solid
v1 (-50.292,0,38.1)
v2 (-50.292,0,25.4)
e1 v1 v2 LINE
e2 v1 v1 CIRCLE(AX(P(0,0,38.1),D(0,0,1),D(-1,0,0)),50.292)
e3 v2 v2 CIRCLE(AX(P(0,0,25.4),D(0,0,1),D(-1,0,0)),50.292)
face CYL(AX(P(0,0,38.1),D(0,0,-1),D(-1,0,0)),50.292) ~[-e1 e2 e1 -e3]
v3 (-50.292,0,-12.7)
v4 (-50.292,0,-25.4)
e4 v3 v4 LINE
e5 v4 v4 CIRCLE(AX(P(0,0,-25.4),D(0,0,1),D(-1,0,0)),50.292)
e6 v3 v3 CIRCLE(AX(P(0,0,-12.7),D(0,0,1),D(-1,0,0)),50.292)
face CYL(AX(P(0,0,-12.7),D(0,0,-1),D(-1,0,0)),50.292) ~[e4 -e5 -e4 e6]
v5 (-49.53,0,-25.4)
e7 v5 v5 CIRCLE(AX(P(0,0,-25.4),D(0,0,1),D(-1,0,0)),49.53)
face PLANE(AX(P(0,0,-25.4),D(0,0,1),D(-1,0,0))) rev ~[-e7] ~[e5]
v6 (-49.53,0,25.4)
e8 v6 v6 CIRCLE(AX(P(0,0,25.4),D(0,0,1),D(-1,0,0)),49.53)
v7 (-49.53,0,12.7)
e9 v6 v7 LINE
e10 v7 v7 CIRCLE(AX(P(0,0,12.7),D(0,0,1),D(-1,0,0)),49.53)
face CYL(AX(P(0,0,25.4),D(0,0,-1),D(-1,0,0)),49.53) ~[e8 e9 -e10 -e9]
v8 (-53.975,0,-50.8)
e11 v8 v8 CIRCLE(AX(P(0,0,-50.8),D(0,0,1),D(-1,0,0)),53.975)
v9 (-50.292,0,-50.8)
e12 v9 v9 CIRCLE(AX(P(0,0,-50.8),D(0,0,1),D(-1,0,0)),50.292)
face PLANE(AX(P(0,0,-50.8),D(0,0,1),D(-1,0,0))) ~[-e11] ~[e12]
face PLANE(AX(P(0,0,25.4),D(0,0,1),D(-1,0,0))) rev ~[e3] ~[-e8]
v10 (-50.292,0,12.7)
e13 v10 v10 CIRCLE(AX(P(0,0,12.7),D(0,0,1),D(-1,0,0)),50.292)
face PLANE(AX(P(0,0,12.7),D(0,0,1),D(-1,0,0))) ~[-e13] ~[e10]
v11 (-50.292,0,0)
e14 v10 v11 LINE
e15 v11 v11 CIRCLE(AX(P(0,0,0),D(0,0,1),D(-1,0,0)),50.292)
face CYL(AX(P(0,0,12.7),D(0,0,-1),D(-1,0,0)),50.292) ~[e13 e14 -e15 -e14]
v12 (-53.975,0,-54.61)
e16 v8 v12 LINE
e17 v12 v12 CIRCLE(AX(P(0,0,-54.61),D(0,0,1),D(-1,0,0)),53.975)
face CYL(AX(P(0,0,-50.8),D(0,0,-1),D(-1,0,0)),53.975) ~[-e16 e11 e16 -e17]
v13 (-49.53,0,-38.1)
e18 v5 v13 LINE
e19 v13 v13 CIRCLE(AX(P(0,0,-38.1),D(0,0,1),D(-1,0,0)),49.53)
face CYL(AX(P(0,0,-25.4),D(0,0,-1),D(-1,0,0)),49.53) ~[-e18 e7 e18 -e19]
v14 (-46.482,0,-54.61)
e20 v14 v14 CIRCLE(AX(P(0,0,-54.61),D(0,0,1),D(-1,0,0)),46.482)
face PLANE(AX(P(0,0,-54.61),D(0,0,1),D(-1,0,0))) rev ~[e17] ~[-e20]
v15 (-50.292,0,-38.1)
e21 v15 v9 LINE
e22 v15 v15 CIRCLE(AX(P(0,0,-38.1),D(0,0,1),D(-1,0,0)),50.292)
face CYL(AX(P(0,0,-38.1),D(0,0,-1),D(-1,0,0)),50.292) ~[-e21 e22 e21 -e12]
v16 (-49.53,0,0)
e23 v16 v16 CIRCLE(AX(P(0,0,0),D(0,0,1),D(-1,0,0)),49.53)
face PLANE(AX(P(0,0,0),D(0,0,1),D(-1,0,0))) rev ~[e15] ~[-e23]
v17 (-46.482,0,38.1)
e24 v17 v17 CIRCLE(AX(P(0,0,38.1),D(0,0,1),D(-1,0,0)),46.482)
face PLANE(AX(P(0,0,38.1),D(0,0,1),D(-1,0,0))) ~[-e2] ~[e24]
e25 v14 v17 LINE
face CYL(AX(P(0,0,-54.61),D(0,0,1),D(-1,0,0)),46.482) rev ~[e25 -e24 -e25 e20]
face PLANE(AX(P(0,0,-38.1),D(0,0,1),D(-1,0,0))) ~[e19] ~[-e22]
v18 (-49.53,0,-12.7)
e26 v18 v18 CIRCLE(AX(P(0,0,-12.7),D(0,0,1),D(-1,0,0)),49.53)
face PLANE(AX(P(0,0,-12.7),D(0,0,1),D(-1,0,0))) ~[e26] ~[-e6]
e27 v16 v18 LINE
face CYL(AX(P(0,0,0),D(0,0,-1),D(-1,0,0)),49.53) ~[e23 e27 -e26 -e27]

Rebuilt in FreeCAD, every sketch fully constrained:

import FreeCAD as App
import Part
import Sketcher

V = App.Vector
Q = App.Units.Quantity

doc = App.newDocument("Part")
body = doc.addObject("PartDesign::Body", "Body")

sketch1 = body.newObject("Sketcher::SketchObject", "Sketch")
sketch1.AttachmentSupport = (doc.getObject("XZ_Plane"), [""])
sketch1.MapMode = "FlatFace"
sketch1.addGeometry([
    Part.LineSegment(V(-54, -50.8, 0), V(-54, -54.6, 0)),
    Part.LineSegment(V(-54, -54.6, 0), V(-46.5, -54.6, 0)),
    Part.LineSegment(V(-46.5, -54.6, 0), V(-46.5, 38.1, 0)),
    Part.LineSegment(V(-46.5, 38.1, 0), V(-50.3, 38.1, 0)),
    Part.LineSegment(V(-50.3, 38.1, 0), V(-50.3, 25.4, 0)),
    Part.LineSegment(V(-50.3, 25.4, 0), V(-49.5, 25.4, 0)),
    Part.LineSegment(V(-49.5, 25.4, 0), V(-49.5, 12.7, 0)),
    Part.LineSegment(V(-49.5, 12.7, 0), V(-50.3, 12.7, 0)),
    Part.LineSegment(V(-50.3, 12.7, 0), V(-50.3, 0, 0)),
    Part.LineSegment(V(-50.3, 0, 0), V(-49.5, 0, 0)),
    Part.LineSegment(V(-49.5, 0, 0), V(-49.5, -12.7, 0)),
    Part.LineSegment(V(-49.5, -12.7, 0), V(-50.3, -12.7, 0)),
    Part.LineSegment(V(-50.3, -12.7, 0), V(-50.3, -25.4, 0)),
    Part.LineSegment(V(-50.3, -25.4, 0), V(-49.5, -25.4, 0)),
    Part.LineSegment(V(-49.5, -25.4, 0), V(-49.5, -38.1, 0)),
    Part.LineSegment(V(-49.5, -38.1, 0), V(-50.3, -38.1, 0)),
    Part.LineSegment(V(-50.3, -38.1, 0), V(-50.3, -50.8, 0)),
    Part.LineSegment(V(-50.3, -50.8, 0), V(-54, -50.8, 0)),
], False)
sketch1.addConstraint([
    Sketcher.Constraint("Coincident", 0, 2, 1, 1),
    Sketcher.Constraint("Coincident", 1, 2, 2, 1),
    Sketcher.Constraint("Coincident", 2, 2, 3, 1),
    Sketcher.Constraint("Coincident", 3, 2, 4, 1),
    Sketcher.Constraint("Coincident", 4, 2, 5, 1),
    Sketcher.Constraint("Coincident", 5, 2, 6, 1),
    Sketcher.Constraint("Coincident", 6, 2, 7, 1),
    Sketcher.Constraint("Coincident", 7, 2, 8, 1),
    Sketcher.Constraint("Coincident", 8, 2, 9, 1),
    Sketcher.Constraint("Coincident", 9, 2, 10, 1),
    Sketcher.Constraint("Coincident", 10, 2, 11, 1),
    Sketcher.Constraint("Coincident", 11, 2, 12, 1),
    Sketcher.Constraint("Coincident", 12, 2, 13, 1),
    Sketcher.Constraint("Coincident", 13, 2, 14, 1),
    Sketcher.Constraint("Coincident", 14, 2, 15, 1),
    Sketcher.Constraint("Coincident", 15, 2, 16, 1),
    Sketcher.Constraint("Coincident", 16, 2, 17, 1),
    Sketcher.Constraint("Coincident", 17, 2, 0, 1),
    Sketcher.Constraint("Vertical", 0),
    Sketcher.Constraint("Horizontal", 1),
    Sketcher.Constraint("Vertical", 2),
    Sketcher.Constraint("Horizontal", 3),
    Sketcher.Constraint("Vertical", 4),
    Sketcher.Constraint("Horizontal", 5),
    Sketcher.Constraint("Vertical", 6),
    Sketcher.Constraint("Horizontal", 7),
    Sketcher.Constraint("Vertical", 8),
    Sketcher.Constraint("Horizontal", 9),
    Sketcher.Constraint("Vertical", 10),
    Sketcher.Constraint("Horizontal", 11),
    Sketcher.Constraint("Vertical", 12),
    Sketcher.Constraint("Horizontal", 13),
    Sketcher.Constraint("Vertical", 14),
    Sketcher.Constraint("Horizontal", 15),
    Sketcher.Constraint("Vertical", 16),
    Sketcher.Constraint("Horizontal", 17),
    Sketcher.Constraint("Symmetric", 6, 2, 10, 2, -1),
    Sketcher.Constraint("Symmetric", 4, 2, 12, 2, -1),
    Sketcher.Constraint("Symmetric", 3, 2, 15, 2, -1),
    Sketcher.Constraint("PointOnObject", 8, 2, -1),
    Sketcher.Constraint("Vertical", 4, 2, 7, 2),
    Sketcher.Constraint("Vertical", 10, 2, 13, 2),
    Sketcher.Constraint("Equal", 3, 0),
    Sketcher.Constraint("Equal", 4, 6),
    Sketcher.Constraint("Equal", 6, 8),
    Sketcher.Constraint("Equal", 14, 16),
    Sketcher.Constraint("DistanceY", 4, 2, 4, 1, Q("0.5 in")),
    Sketcher.Constraint("DistanceX", 3, 2, 3, 1, Q("0.15 in")),
    Sketcher.Constraint("DistanceX", 5, 1, 5, 2, Q("0.03 in")),
    Sketcher.Constraint("DistanceX", 1, 1, 1, 2, Q("0.295 in")),
    Sketcher.Constraint("DistanceX", 1, 2, -1, 1, Q("1.83 in")),
])
revolution = body.newObject("PartDesign::Revolution", "Revolution")
revolution.Profile = sketch1
revolution.ReferenceAxis = (sketch1, ["V_Axis"])
revolution.Angle = 360

doc.recompute()
